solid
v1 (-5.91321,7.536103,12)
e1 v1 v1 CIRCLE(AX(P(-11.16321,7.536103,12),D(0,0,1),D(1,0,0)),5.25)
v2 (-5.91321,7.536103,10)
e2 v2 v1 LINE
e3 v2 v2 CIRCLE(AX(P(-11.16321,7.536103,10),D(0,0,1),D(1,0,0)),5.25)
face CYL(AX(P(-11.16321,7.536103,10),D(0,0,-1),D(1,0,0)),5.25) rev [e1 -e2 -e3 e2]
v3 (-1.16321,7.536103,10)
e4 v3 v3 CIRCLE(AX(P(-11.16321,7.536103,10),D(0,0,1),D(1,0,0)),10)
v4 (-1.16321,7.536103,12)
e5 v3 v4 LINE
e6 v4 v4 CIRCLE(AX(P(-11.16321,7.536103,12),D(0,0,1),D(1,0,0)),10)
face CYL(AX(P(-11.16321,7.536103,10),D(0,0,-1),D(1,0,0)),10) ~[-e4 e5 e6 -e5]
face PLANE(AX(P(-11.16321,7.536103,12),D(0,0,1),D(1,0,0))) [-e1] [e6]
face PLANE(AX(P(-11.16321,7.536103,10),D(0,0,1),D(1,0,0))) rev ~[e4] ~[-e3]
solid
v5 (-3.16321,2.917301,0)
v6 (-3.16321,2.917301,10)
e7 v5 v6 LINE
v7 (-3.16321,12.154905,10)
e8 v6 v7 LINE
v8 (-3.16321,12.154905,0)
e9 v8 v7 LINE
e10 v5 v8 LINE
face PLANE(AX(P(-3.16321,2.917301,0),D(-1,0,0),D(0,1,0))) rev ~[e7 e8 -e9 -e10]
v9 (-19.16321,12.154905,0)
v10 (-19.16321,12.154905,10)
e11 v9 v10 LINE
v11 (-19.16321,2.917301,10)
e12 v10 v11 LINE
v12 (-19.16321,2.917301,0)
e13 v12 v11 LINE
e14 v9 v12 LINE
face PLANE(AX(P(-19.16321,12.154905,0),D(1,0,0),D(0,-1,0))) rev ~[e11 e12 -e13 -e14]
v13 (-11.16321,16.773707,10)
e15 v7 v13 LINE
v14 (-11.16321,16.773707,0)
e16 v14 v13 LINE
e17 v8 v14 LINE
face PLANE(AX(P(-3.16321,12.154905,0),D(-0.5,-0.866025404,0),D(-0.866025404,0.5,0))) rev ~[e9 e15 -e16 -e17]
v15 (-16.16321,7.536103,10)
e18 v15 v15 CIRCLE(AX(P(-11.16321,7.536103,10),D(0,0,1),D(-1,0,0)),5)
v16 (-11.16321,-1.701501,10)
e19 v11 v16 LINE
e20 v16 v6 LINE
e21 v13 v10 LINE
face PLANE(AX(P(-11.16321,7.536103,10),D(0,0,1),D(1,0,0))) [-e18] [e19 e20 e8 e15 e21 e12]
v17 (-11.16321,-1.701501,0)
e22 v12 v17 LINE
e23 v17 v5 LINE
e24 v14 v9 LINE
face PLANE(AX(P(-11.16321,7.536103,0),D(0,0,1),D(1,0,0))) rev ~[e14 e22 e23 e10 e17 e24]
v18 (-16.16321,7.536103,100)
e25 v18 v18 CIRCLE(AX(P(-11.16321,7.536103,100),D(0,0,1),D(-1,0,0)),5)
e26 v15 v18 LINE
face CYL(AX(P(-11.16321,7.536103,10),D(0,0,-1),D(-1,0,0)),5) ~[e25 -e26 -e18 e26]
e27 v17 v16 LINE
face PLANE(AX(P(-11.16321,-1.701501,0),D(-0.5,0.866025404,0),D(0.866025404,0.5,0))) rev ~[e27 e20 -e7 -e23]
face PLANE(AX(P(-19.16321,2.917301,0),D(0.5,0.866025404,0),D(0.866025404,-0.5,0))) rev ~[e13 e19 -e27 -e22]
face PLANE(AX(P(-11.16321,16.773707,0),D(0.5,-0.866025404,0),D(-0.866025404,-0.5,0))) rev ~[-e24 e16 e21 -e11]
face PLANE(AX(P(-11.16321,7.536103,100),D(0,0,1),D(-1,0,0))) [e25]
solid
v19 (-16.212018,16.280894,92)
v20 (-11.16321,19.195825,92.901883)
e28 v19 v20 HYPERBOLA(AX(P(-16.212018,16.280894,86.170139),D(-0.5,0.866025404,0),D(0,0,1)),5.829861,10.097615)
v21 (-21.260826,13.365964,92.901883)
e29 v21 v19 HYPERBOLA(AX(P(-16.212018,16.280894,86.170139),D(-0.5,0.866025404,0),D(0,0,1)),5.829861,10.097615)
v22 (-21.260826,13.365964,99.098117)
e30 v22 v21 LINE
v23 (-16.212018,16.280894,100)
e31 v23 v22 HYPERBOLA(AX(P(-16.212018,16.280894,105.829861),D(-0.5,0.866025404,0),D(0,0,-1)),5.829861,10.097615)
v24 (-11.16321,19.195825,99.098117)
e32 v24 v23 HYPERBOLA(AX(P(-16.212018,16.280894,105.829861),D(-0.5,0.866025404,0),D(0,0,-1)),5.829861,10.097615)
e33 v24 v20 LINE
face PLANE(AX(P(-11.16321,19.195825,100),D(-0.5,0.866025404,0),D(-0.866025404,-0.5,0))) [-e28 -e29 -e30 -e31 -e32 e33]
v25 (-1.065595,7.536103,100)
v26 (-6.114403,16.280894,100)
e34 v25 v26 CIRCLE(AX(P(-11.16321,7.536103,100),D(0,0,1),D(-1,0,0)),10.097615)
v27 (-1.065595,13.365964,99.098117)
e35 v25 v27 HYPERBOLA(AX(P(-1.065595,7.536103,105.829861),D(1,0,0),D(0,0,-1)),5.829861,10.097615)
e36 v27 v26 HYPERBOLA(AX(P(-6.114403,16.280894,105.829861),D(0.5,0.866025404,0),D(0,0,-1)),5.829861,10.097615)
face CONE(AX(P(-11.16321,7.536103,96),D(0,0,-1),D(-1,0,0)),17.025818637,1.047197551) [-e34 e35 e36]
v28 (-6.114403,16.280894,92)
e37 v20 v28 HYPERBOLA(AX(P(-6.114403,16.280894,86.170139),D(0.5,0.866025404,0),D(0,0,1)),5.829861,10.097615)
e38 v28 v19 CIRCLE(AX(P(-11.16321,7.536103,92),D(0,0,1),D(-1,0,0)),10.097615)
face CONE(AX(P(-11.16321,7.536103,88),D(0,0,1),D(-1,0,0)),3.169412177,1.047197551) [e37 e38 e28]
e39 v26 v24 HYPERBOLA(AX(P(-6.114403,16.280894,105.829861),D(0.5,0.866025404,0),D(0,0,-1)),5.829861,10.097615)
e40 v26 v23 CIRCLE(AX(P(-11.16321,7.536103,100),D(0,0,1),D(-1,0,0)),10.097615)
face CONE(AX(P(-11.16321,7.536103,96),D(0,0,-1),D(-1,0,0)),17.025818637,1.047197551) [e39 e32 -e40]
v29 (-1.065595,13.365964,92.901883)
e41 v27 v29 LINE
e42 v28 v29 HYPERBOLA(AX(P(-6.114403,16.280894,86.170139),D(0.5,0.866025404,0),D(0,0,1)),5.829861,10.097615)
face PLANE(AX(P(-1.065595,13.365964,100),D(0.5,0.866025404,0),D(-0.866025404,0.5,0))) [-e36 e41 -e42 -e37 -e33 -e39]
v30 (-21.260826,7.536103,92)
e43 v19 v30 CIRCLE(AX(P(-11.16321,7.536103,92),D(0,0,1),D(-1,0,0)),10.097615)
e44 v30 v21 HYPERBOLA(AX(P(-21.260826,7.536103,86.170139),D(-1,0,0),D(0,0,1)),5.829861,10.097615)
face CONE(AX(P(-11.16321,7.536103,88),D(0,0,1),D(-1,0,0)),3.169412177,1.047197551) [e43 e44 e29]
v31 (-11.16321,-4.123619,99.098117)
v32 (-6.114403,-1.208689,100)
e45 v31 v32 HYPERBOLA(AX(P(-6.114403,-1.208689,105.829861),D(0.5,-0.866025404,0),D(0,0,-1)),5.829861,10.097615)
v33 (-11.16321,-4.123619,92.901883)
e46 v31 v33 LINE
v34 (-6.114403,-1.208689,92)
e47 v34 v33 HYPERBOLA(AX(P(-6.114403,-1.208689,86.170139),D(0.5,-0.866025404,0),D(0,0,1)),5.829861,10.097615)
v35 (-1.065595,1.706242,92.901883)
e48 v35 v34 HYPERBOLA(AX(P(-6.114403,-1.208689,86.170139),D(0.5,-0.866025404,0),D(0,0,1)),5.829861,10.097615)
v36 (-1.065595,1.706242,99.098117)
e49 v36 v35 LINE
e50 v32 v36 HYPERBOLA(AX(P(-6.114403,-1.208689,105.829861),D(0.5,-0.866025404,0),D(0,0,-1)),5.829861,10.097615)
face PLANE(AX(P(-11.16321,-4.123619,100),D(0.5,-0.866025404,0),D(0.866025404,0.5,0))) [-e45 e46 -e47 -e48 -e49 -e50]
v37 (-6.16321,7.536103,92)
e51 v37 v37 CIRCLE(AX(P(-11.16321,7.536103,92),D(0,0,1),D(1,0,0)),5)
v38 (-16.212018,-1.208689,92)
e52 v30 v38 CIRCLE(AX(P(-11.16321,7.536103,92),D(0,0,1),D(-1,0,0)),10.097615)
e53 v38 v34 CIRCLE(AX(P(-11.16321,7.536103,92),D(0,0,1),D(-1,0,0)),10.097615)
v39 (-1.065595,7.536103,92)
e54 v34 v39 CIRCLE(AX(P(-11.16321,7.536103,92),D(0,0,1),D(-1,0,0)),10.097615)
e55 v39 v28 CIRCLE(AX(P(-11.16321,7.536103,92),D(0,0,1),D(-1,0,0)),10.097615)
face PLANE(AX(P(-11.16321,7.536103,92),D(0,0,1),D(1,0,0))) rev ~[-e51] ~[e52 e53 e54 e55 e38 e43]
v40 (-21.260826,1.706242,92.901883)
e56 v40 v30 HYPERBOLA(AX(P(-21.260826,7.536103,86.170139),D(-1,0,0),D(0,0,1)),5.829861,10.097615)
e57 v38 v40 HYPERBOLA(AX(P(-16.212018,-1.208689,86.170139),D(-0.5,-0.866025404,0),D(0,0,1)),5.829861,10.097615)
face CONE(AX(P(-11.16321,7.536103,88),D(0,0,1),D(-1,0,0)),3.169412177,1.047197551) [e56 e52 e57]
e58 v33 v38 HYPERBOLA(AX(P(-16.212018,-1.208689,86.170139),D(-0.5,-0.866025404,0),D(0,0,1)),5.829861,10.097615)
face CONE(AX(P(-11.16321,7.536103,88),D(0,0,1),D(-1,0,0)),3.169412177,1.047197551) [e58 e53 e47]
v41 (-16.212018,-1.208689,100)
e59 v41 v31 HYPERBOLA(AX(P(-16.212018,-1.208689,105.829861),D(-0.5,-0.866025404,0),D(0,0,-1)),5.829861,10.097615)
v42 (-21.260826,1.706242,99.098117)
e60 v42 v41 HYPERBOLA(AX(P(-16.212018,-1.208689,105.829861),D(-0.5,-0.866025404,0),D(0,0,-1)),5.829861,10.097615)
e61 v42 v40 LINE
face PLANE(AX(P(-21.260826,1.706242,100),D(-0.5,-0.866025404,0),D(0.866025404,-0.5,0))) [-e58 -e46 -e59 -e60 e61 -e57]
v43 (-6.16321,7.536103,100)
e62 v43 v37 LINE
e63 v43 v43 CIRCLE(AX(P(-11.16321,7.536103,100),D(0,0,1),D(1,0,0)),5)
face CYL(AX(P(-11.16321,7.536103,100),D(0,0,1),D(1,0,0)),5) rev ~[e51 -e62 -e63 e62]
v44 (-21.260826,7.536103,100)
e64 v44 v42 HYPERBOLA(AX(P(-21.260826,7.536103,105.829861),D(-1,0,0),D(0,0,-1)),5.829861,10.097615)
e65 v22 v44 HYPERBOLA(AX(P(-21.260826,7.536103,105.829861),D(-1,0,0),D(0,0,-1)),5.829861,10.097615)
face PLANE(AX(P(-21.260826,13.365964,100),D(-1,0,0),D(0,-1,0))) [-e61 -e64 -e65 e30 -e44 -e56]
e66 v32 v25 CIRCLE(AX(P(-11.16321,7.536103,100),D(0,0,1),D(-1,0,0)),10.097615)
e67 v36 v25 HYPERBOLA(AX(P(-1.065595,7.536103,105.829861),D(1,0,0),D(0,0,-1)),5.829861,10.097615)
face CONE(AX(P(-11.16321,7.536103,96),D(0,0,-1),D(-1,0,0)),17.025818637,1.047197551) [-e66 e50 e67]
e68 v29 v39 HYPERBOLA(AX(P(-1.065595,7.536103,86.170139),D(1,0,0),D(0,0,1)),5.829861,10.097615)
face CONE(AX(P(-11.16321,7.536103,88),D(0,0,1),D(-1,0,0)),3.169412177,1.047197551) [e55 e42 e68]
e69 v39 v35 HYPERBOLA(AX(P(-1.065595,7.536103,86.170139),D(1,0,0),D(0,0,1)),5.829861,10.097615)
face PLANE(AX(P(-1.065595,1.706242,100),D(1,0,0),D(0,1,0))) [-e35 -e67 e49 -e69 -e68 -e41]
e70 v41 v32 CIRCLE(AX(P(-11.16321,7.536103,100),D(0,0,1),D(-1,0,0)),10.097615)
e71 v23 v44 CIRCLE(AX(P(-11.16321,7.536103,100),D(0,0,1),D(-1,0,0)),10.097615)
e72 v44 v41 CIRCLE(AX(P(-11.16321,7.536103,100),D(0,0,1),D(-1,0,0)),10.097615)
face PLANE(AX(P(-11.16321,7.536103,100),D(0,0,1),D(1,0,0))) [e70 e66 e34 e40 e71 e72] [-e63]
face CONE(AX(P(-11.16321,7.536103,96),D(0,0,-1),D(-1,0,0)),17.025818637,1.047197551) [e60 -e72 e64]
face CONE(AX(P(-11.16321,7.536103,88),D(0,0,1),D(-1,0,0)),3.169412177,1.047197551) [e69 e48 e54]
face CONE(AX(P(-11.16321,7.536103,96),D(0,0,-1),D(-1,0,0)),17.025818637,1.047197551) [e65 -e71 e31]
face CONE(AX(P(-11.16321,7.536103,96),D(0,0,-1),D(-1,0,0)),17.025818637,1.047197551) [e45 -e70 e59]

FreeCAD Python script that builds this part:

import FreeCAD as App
import Part
import Sketcher

V = App.Vector
Q = App.Units.Quantity

doc = App.newDocument("Part")
body = doc.addObject("PartDesign::Body", "Body")

sketch1 = body.newObject("Sketcher::SketchObject", "Sketch")
sketch1.AttachmentSupport = (doc.getObject("XY_Plane"), [""])
sketch1.MapMode = "FlatFace"
sketch1.addGeometry([
    Part.LineSegment(V(-11, -2, 0), V(-3, 3, 0)),
    Part.LineSegment(V(-3, 3, 0), V(-3, 12, 0)),
    Part.LineSegment(V(-3, 12, 0), V(-11, 17, 0)),
    Part.LineSegment(V(-11, 17, 0), V(-19, 12, 0)),
    Part.LineSegment(V(-19, 12, 0), V(-19, 3, 0)),
    Part.LineSegment(V(-19, 3, 0), V(-11, -2, 0)),
], False)
sketch1.addConstraint([
    Sketcher.Constraint("Coincident", 0, 2, 1, 1),
    Sketcher.Constraint("Coincident", 1, 2, 2, 1),
    Sketcher.Constraint("Coincident", 2, 2, 3, 1),
    Sketcher.Constraint("Coincident", 3, 2, 4, 1),
    Sketcher.Constraint("Coincident", 4, 2, 5, 1),
    Sketcher.Constraint("Coincident", 5, 2, 0, 1),
    Sketcher.Constraint("Vertical", 1),
    Sketcher.Constraint("Vertical", 4),
    Sketcher.Constraint("Parallel", 0, 3),
    Sketcher.Constraint("Parallel", 2, 5),
    Sketcher.Constraint("Horizontal", 1, 2, 3, 2),
    Sketcher.Constraint("Horizontal", 0, 2, 4, 2),
    Sketcher.Constraint("Vertical", 2, 2, 5, 2),
    Sketcher.Constraint("Angle", 0, Q("30 deg")),
    Sketcher.Constraint("DistanceX", 2, 2, 1, 2, Q("8 mm")),
    Sketcher.Constraint("DistanceY", -1, 1, 0, 2, Q("2.917301 mm")),
    Sketcher.Constraint("DistanceY", 1, 1, 1, 2, Q("9.237604 mm")),
    Sketcher.Constraint("DistanceX", 0, 2, -1, 1, Q("3.16321 mm")),
])
pad1 = body.newObject("PartDesign::Pad", "Pad")
pad1.Profile = sketch1
pad1.Length = 10

sketch2 = body.newObject("Sketcher::SketchObject", "Sketch001")
sketch2.AttachmentSupport = (doc.getObject("XY_Plane"), [""])
sketch2.MapMode = "FlatFace"
sketch2.AttachmentOffset = App.Placement(V(0, 0, 10), App.Rotation())
sketch2.addGeometry(Part.Circle(V(-11, 8, 0), V(0, 0, 1), 5), False)
sketch2.addConstraint([
    Sketcher.Constraint("Diameter", 0, Q("10 mm")),
    Sketcher.Constraint("DistanceX", 0, 3, -1, 1, Q("11.16321 mm")),
    Sketcher.Constraint("DistanceY", -1, 1, 0, 3, Q("7.536103 mm")),
])
pad2 = body.newObject("PartDesign::Pad", "Pad001")
pad2.Profile = sketch2
pad2.Length = 90
body2 = doc.addObject("PartDesign::Body", "Body001")

sketch3 = body2.newObject("Sketcher::SketchObject", "Sketch002")
sketch3.AttachmentSupport = (doc.getObject("XY_Plane001"), [""])
sketch3.MapMode = "FlatFace"
sketch3.AttachmentOffset = App.Placement(V(0, 0, 10), App.Rotation())
sketch3.addGeometry([
    Part.Circle(V(-11, 8, 0), V(0, 0, 1), 10),
    Part.Circle(V(-11, 8, 0), V(0, 0, 1), 5),
], False)
sketch3.addConstraint([
    Sketcher.Constraint("Coincident", 1, 3, 0, 3),
    Sketcher.Constraint("Diameter", 0, Q("20 mm")),
    Sketcher.Constraint("Diameter", 1, Q("10.5 mm")),
    Sketcher.Constraint("DistanceX", 0, 3, -1, 1, Q("11.16321 mm")),
    Sketcher.Constraint("DistanceY", -1, 1, 0, 3, Q("7.536103 mm")),
])
pad3 = body2.newObject("PartDesign::Pad", "Pad002")
pad3.Profile = sketch3
pad3.Length = 2
body3 = doc.addObject("PartDesign::Body", "Body002")

sketch4 = body3.newObject("Sketcher::SketchObject", "Sketch003")
sketch4.AttachmentSupport = (doc.getObject("XY_Plane002"), [""])
sketch4.MapMode = "FlatFace"
sketch4.AttachmentOffset = App.Placement(V(0, 0, 100), App.Rotation())
sketch4.addGeometry([
    Part.LineSegment(V(-11, -4, 0), V(-1, 2, 0)),
    Part.LineSegment(V(-1, 2, 0), V(-1, 13, 0)),
    Part.LineSegment(V(-1, 13, 0), V(-11, 19, 0)),
    Part.LineSegment(V(-11, 19, 0), V(-21, 13, 0)),
    Part.LineSegment(V(-21, 13, 0), V(-21, 2, 0)),
    Part.LineSegment(V(-21, 2, 0), V(-11, -4, 0)),
    Part.Circle(V(-11, 8, 0), V(0, 0, 1), 5),
], False)
sketch4.addConstraint([
    Sketcher.Constraint("Coincident", 0, 2, 1, 1),
    Sketcher.Constraint("Coincident", 1, 2, 2, 1),
    Sketcher.Constraint("Coincident", 2, 2, 3, 1),
    Sketcher.Constraint("Coincident", 3, 2, 4, 1),
    Sketcher.Constraint("Coincident", 4, 2, 5, 1),
    Sketcher.Constraint("Coincident", 5, 2, 0, 1),
    Sketcher.Constraint("Vertical", 1),
    Sketcher.Constraint("Vertical", 4),
    Sketcher.Constraint("Parallel", 0, 3),
    Sketcher.Constraint("Parallel", 2, 5),
    Sketcher.Constraint("Horizontal", 1, 2, 3, 2),
    Sketcher.Constraint("Horizontal", 0, 2, 4, 2),
    Sketcher.Constraint("Vertical", 6, 3, 2, 2),
    Sketcher.Constraint("Vertical", 2, 2, 5, 2),
    Sketcher.Constraint("Diameter", 6, Q("10 mm")),
    Sketcher.Constraint("Angle", 0, Q("30 deg")),
    Sketcher.Constraint("DistanceY", 1, 1, 1, 2, Q("11.659722 mm")),
    Sketcher.Constraint("Distance", 0, Q("11.659722 mm")),
    Sketcher.Constraint("DistanceX", 6, 3, -1, 1, Q("11.16321 mm")),
    Sketcher.Constraint("DistanceY", -1, 1, 0, 2, Q("1.706242 mm")),
    Sketcher.Constraint("DistanceY", 0, 2, 6, 3, Q("5.829861 mm")),
])
pad4 = body3.newObject("PartDesign::Pad", "Pad003")
pad4.Profile = sketch4
pad4.Length = 8
pad4.Reversed = True

sketch5 = body3.newObject("Sketcher::SketchObject", "Sketch004")
sketch5.AttachmentSupport = (doc.getObject("XZ_Plane002"), [""])
sketch5.MapMode = "FlatFace"
sketch5.AttachmentOffset = App.Placement(V(0, 0, -7.536103), App.Rotation())
sketch5.addGeometry([
    Part.LineSegment(V(-28.2, 96, 0), V(-14.3, 104, 0)),
    Part.LineSegment(V(-14.3, 104, 0), V(-14.3, 108.5, 0)),
    Part.LineSegment(V(-14.3, 108.5, 0), V(-39.3, 108.5, 0)),
    Part.LineSegment(V(-39.3, 108.5, 0), V(-39.3, 83.5, 0)),
    Part.LineSegment(V(-39.3, 83.5, 0), V(-14.3, 83.5, 0)),
    Part.LineSegment(V(-14.3, 83.5, 0), V(-14.3, 88, 0)),
    Part.LineSegment(V(-14.3, 88, 0), V(-28.2, 96, 0)),
], False)
sketch5.addGeometry(Part.LineSegment(V(-11.2, 83.5, 0), V(-11.2, 108.5, 0)), True)
sketch5.addConstraint([
    Sketcher.Constraint("Coincident", 0, 2, 1, 1),
    Sketcher.Constraint("Coincident", 1, 2, 2, 1),
    Sketcher.Constraint("Coincident", 2, 2, 3, 1),
    Sketcher.Constraint("Coincident", 3, 2, 4, 1),
    Sketcher.Constraint("Coincident", 4, 2, 5, 1),
    Sketcher.Constraint("Coincident", 5, 2, 6, 1),
    Sketcher.Constraint("Coincident", 6, 2, 0, 1),
    Sketcher.Constraint("Vertical", 1),
    Sketcher.Constraint("Horizontal", 2),
    Sketcher.Constraint("Vertical", 3),
    Sketcher.Constraint("Horizontal", 4),
    Sketcher.Constraint("Vertical", 5),
    Sketcher.Constraint("Vertical", 7),
    Sketcher.Constraint("Horizontal", 4, 2, 7, 1),
    Sketcher.Constraint("Horizontal", 2, 2, 7, 2),
    Sketcher.Constraint("Vertical", 1, 2, 4, 2),
    Sketcher.Constraint("Equal", 4, 3),
    Sketcher.Constraint("Equal", 1, 5),
    Sketcher.Constraint("Equal", 0, 6),
    Sketcher.Constraint("DistanceX", 2, 2, 2, 1, Q("25 mm")),
    Sketcher.Constraint("Angle", 0, Q("30 deg")),
    Sketcher.Constraint("Distance", 0, Q("16 mm")),
    Sketcher.Constraint("DistanceY", -1, 1, 0, 2, Q("104 mm")),
    Sketcher.Constraint("DistanceX", 6, 2, -1, 1, Q("28.189029 mm")),
    Sketcher.Constraint("DistanceX", 7, 1, -1, 1, Q("11.16321 mm")),
])
groove = body3.newObject("PartDesign::Groove", "Groove")
groove.Profile = sketch5
groove.ReferenceAxis = (sketch5, ["Axis0"])
groove.Angle = 360

doc.recompute()
